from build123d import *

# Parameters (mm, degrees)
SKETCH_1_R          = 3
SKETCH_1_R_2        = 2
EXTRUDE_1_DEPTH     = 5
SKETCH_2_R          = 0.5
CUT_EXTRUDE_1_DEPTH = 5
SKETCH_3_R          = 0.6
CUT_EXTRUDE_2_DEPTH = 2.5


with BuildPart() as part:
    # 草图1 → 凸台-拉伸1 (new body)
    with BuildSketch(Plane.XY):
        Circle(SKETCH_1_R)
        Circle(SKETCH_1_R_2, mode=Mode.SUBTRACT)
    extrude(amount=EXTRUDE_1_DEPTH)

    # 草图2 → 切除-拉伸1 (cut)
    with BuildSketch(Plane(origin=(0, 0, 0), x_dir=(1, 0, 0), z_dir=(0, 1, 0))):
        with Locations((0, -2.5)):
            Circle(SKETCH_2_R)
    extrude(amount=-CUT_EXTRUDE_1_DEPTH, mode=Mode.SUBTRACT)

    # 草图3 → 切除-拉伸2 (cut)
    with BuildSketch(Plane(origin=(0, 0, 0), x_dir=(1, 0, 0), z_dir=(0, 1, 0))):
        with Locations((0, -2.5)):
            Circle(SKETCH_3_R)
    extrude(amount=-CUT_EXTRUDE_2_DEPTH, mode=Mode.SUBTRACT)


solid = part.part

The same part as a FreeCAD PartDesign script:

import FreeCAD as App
import Part
import Sketcher
Q = App.Units.Quantity

doc = App.newDocument("Part")
body = doc.addObject("PartDesign::Body", "Body")

# Sketch on XY plane
sketch1 = doc.addObject("Sketcher::SketchObject", "Sketch")
body.addObject(sketch1)
sketch1.AttachmentSupport = (doc.XY_Plane, [""])
sketch1.MapMode = "FlatFace"
sketch1.addGeometry([
    Part.Circle(App.Vector(0, 0, 0), App.Vector(0, 0, 1), 3),
    Part.Circle(App.Vector(0, 0, 0), App.Vector(0, 0, 1), 2),
], False)
sketch1.addConstraint([
    Sketcher.Constraint("Coincident", 0, 3, -1, 1),
    Sketcher.Constraint("Coincident", 1, 3, -1, 1),
    Sketcher.Constraint("Diameter", 0, Q("6 mm")),
    Sketcher.Constraint("Diameter", 1, Q("4 mm")),
])
pad1 = doc.addObject("PartDesign::Pad", "Pad")
body.addObject(pad1)
pad1.Profile = sketch1
pad1.Length = 5

# Sketch on XZ plane
sketch2 = doc.addObject("Sketcher::SketchObject", "Sketch001")
body.addObject(sketch2)
sketch2.AttachmentSupport = (doc.XZ_Plane, [""])
sketch2.MapMode = "FlatFace"
sketch2.addGeometry(Part.Circle(App.Vector(0, 2.5, 0), App.Vector(0, 0, 1), 0.5), False)
sketch2.addConstraint([
    Sketcher.Constraint("PointOnObject", 0, 3, -2),
    Sketcher.Constraint("Diameter", 0, Q("1 mm")),
    Sketcher.Constraint("DistanceY", -1, 1, 0, 3, Q("2.5 mm")),
])
pocket1 = doc.addObject("PartDesign::Pocket", "Pocket")
body.addObject(pocket1)
pocket1.Profile = sketch2
pocket1.Length = 5
pocket1.Reversed = True

# Sketch on XZ plane
sketch3 = doc.addObject("Sketcher::SketchObject", "Sketch002")
body.addObject(sketch3)
sketch3.AttachmentSupport = (doc.XZ_Plane, [""])
sketch3.MapMode = "FlatFace"
sketch3.addGeometry(Part.Circle(App.Vector(0, 2.5, 0), App.Vector(0, 0, 1), 0.6), False)
sketch3.addConstraint([
    Sketcher.Constraint("PointOnObject", 0, 3, -2),
    Sketcher.Constraint("Diameter", 0, Q("1.2 mm")),
    Sketcher.Constraint("DistanceY", -1, 1, 0, 3, Q("2.5 mm")),
])
pocket2 = doc.addObject("PartDesign::Pocket", "Pocket001")
body.addObject(pocket2)
pocket2.Profile = sketch3
pocket2.Length = 2.5
pocket2.Reversed = True

doc.recompute()
